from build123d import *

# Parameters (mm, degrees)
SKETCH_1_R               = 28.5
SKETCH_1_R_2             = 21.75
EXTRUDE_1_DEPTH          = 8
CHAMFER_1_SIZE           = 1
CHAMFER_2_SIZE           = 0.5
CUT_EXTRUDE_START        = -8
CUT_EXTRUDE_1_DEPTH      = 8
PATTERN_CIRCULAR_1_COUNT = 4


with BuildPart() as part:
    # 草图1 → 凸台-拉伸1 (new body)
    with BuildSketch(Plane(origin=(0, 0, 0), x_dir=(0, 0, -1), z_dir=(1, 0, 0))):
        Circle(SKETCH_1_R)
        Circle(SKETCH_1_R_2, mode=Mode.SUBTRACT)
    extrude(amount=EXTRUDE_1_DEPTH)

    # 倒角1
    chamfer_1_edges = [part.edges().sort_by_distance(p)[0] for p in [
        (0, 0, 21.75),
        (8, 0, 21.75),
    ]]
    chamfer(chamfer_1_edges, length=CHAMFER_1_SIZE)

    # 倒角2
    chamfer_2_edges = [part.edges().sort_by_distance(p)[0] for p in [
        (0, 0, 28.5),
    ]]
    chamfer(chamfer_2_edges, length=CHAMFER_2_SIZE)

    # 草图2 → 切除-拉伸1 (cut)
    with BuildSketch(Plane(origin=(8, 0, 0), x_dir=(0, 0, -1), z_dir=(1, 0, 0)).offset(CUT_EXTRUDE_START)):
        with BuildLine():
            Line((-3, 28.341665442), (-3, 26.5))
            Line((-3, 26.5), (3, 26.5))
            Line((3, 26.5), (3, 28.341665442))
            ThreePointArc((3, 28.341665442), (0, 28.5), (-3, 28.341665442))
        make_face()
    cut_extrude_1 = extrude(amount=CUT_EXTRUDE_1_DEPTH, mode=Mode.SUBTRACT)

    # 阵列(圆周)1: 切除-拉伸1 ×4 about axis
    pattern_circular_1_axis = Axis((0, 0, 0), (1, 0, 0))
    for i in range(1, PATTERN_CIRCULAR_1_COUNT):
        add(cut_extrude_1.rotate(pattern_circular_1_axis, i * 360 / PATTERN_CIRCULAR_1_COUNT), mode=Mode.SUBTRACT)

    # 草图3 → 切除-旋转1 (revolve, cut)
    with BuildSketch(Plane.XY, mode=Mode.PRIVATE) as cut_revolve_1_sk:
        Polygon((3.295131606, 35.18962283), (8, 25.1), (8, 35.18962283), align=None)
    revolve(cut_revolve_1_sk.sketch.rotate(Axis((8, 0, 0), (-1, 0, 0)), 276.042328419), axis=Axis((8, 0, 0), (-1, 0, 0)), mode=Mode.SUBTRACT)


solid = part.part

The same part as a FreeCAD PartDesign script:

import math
import FreeCAD as App
import Part
import Sketcher
from FreeCAD import Vector
Q = App.Units.Quantity


def edges_at(feature, points):
    """Names of the edges that pass closest to the given points."""
    edges = feature.Shape.Edges
    near = lambda p: min(range(len(edges)), key=lambda i: edges[i].distToShape(Part.Vertex(*p))[0])
    return sorted({f"Edge{near(p) + 1}" for p in points})


def add_polygon(sketch, points):
    """Adds a closed chain of lines whose ends are joined by coincident constraints."""
    first, n = sketch.GeometryCount, len(points)
    for a, b in zip(points, points[1:] + points[:1]):
        sketch.addGeometry(Part.LineSegment(App.Vector(*a, 0), App.Vector(*b, 0)), False)
    for i in range(n):
        sketch.addConstraint(Sketcher.Constraint("Coincident", first + i, 2, first + (i + 1) % n, 1))

doc = App.newDocument("Part")
body = doc.addObject("PartDesign::Body", "Body")

# Sketch on YZ plane
sketch1 = doc.addObject("Sketcher::SketchObject", "Sketch")
body.addObject(sketch1)
sketch1.AttachmentSupport = (doc.YZ_Plane, [""])
sketch1.MapMode = "FlatFace"
sketch1.addGeometry(Part.Circle(Vector(0, 0, 0), Vector(0, 0, 1), 28), False)
sketch1.addGeometry(Part.Circle(Vector(0, 0, 0), Vector(0, 0, 1), 22), False)
sketch1.addConstraint(Sketcher.Constraint("Coincident", 0, 3, -1, 1))
sketch1.addConstraint(Sketcher.Constraint("Coincident", 1, 3, -1, 1))
sketch1.addConstraint(Sketcher.Constraint("Diameter", 0, Q("57 mm")))
sketch1.addConstraint(Sketcher.Constraint("Diameter", 1, Q("43.5 mm")))
pad1 = doc.addObject("PartDesign::Pad", "Pad")
body.addObject(pad1)
pad1.Profile = sketch1
pad1.Length = 8
doc.recompute()

chamfer = doc.addObject("PartDesign::Chamfer", "Chamfer")
body.addObject(chamfer)
chamfer.Base = (pad1, edges_at(pad1, [(0, 0, 21.75), (8, 0, 21.75)]))
chamfer.Size = 1
doc.recompute()

chamfer2 = doc.addObject("PartDesign::Chamfer", "Chamfer001")
body.addObject(chamfer2)
chamfer2.Base = (chamfer, edges_at(chamfer, [(0, 0, 28.5)]))
chamfer2.Size = 0.5

# Sketch on YZ plane
sketch2 = doc.addObject("Sketcher::SketchObject", "Sketch001")
body.addObject(sketch2)
sketch2.AttachmentSupport = (doc.YZ_Plane, [""])
sketch2.MapMode = "FlatFace"
sketch2.addGeometry(Part.LineSegment(Vector(28.3, 3, 0), Vector(26.5, 3, 0)), False)
sketch2.addGeometry(Part.LineSegment(Vector(26.5, 3, 0), Vector(26.5, -3, 0)), False)
sketch2.addGeometry(Part.LineSegment(Vector(26.5, -3, 0), Vector(28.3, -3, 0)), False)
sketch2.addGeometry(Part.ArcOfCircle(Part.Circle(Vector(0, 0, 0), Vector(0, 0, 1), 28.5), math.radians(-6.04), math.radians(6.04)), False)
sketch2.addConstraint(Sketcher.Constraint("Coincident", 0, 2, 1, 1))
sketch2.addConstraint(Sketcher.Constraint("Coincident", 1, 2, 2, 1))
sketch2.addConstraint(Sketcher.Constraint("Coincident", 2, 2, 3, 1))
sketch2.addConstraint(Sketcher.Constraint("Coincident", 3, 2, 0, 1))
sketch2.addConstraint(Sketcher.Constraint("Horizontal", 0))
sketch2.addConstraint(Sketcher.Constraint("Vertical", 1))
sketch2.addConstraint(Sketcher.Constraint("Horizontal", 2))
sketch2.addConstraint(Sketcher.Constraint("Coincident", 3, 3, -1, 1))
sketch2.addConstraint(Sketcher.Constraint("Vertical", 2, 2, 3, 2))
sketch2.addConstraint(Sketcher.Constraint("Radius", 3, Q("28.5 mm")))
sketch2.addConstraint(Sketcher.Constraint("DistanceY", 1, 2, 1, 1, Q("6 mm")))
sketch2.addConstraint(Sketcher.Constraint("DistanceX", -1, 1, 0, 2, Q("26.5 mm")))
pocket1 = doc.addObject("PartDesign::Pocket", "Pocket")
body.addObject(pocket1)
pocket1.Profile = sketch2
pocket1.Length = 8
pocket1.Reversed = True
doc.recompute()

polarpattern = doc.addObject("PartDesign::PolarPattern", "PolarPattern")
body.addObject(polarpattern)
polarpattern.Originals = [pocket1]
polarpattern.Axis = (doc.X_Axis, [""])
polarpattern.Angle = 360
polarpattern.Occurrences = 4
body.Tip = polarpattern

# Sketch on XY plane
sketch3 = doc.addObject("Sketcher::SketchObject", "Sketch002")
body.addObject(sketch3)
sketch3.AttachmentSupport = (doc.XY_Plane, [""])
sketch3.MapMode = "FlatFace"
add_polygon(sketch3, [(3.3, 35.2), (8, 25.1), (8, 35.2)])  # lines 0-2
sketch3.addConstraint(Sketcher.Constraint("Vertical", 1))
sketch3.addConstraint(Sketcher.Constraint("Horizontal", 2))
sketch3.addConstraint(Sketcher.Constraint("Angle", 0, Q("-65 deg")))
sketch3.addConstraint(Sketcher.Constraint("DistanceX", -1, 1, 0, 2, Q("8 mm")))
sketch3.addConstraint(Sketcher.Constraint("DistanceY", -1, 1, 0, 2, Q("25.1 mm")))
sketch3.addConstraint(Sketcher.Constraint("DistanceX", 2, 2, 2, 1, Q("4.704868 mm")))
groove = doc.addObject("PartDesign::Groove", "Groove")
body.addObject(groove)
groove.Profile = sketch3
groove.ReferenceAxis = (sketch3, ["H_Axis"])
groove.Angle = 360

doc.recompute()
